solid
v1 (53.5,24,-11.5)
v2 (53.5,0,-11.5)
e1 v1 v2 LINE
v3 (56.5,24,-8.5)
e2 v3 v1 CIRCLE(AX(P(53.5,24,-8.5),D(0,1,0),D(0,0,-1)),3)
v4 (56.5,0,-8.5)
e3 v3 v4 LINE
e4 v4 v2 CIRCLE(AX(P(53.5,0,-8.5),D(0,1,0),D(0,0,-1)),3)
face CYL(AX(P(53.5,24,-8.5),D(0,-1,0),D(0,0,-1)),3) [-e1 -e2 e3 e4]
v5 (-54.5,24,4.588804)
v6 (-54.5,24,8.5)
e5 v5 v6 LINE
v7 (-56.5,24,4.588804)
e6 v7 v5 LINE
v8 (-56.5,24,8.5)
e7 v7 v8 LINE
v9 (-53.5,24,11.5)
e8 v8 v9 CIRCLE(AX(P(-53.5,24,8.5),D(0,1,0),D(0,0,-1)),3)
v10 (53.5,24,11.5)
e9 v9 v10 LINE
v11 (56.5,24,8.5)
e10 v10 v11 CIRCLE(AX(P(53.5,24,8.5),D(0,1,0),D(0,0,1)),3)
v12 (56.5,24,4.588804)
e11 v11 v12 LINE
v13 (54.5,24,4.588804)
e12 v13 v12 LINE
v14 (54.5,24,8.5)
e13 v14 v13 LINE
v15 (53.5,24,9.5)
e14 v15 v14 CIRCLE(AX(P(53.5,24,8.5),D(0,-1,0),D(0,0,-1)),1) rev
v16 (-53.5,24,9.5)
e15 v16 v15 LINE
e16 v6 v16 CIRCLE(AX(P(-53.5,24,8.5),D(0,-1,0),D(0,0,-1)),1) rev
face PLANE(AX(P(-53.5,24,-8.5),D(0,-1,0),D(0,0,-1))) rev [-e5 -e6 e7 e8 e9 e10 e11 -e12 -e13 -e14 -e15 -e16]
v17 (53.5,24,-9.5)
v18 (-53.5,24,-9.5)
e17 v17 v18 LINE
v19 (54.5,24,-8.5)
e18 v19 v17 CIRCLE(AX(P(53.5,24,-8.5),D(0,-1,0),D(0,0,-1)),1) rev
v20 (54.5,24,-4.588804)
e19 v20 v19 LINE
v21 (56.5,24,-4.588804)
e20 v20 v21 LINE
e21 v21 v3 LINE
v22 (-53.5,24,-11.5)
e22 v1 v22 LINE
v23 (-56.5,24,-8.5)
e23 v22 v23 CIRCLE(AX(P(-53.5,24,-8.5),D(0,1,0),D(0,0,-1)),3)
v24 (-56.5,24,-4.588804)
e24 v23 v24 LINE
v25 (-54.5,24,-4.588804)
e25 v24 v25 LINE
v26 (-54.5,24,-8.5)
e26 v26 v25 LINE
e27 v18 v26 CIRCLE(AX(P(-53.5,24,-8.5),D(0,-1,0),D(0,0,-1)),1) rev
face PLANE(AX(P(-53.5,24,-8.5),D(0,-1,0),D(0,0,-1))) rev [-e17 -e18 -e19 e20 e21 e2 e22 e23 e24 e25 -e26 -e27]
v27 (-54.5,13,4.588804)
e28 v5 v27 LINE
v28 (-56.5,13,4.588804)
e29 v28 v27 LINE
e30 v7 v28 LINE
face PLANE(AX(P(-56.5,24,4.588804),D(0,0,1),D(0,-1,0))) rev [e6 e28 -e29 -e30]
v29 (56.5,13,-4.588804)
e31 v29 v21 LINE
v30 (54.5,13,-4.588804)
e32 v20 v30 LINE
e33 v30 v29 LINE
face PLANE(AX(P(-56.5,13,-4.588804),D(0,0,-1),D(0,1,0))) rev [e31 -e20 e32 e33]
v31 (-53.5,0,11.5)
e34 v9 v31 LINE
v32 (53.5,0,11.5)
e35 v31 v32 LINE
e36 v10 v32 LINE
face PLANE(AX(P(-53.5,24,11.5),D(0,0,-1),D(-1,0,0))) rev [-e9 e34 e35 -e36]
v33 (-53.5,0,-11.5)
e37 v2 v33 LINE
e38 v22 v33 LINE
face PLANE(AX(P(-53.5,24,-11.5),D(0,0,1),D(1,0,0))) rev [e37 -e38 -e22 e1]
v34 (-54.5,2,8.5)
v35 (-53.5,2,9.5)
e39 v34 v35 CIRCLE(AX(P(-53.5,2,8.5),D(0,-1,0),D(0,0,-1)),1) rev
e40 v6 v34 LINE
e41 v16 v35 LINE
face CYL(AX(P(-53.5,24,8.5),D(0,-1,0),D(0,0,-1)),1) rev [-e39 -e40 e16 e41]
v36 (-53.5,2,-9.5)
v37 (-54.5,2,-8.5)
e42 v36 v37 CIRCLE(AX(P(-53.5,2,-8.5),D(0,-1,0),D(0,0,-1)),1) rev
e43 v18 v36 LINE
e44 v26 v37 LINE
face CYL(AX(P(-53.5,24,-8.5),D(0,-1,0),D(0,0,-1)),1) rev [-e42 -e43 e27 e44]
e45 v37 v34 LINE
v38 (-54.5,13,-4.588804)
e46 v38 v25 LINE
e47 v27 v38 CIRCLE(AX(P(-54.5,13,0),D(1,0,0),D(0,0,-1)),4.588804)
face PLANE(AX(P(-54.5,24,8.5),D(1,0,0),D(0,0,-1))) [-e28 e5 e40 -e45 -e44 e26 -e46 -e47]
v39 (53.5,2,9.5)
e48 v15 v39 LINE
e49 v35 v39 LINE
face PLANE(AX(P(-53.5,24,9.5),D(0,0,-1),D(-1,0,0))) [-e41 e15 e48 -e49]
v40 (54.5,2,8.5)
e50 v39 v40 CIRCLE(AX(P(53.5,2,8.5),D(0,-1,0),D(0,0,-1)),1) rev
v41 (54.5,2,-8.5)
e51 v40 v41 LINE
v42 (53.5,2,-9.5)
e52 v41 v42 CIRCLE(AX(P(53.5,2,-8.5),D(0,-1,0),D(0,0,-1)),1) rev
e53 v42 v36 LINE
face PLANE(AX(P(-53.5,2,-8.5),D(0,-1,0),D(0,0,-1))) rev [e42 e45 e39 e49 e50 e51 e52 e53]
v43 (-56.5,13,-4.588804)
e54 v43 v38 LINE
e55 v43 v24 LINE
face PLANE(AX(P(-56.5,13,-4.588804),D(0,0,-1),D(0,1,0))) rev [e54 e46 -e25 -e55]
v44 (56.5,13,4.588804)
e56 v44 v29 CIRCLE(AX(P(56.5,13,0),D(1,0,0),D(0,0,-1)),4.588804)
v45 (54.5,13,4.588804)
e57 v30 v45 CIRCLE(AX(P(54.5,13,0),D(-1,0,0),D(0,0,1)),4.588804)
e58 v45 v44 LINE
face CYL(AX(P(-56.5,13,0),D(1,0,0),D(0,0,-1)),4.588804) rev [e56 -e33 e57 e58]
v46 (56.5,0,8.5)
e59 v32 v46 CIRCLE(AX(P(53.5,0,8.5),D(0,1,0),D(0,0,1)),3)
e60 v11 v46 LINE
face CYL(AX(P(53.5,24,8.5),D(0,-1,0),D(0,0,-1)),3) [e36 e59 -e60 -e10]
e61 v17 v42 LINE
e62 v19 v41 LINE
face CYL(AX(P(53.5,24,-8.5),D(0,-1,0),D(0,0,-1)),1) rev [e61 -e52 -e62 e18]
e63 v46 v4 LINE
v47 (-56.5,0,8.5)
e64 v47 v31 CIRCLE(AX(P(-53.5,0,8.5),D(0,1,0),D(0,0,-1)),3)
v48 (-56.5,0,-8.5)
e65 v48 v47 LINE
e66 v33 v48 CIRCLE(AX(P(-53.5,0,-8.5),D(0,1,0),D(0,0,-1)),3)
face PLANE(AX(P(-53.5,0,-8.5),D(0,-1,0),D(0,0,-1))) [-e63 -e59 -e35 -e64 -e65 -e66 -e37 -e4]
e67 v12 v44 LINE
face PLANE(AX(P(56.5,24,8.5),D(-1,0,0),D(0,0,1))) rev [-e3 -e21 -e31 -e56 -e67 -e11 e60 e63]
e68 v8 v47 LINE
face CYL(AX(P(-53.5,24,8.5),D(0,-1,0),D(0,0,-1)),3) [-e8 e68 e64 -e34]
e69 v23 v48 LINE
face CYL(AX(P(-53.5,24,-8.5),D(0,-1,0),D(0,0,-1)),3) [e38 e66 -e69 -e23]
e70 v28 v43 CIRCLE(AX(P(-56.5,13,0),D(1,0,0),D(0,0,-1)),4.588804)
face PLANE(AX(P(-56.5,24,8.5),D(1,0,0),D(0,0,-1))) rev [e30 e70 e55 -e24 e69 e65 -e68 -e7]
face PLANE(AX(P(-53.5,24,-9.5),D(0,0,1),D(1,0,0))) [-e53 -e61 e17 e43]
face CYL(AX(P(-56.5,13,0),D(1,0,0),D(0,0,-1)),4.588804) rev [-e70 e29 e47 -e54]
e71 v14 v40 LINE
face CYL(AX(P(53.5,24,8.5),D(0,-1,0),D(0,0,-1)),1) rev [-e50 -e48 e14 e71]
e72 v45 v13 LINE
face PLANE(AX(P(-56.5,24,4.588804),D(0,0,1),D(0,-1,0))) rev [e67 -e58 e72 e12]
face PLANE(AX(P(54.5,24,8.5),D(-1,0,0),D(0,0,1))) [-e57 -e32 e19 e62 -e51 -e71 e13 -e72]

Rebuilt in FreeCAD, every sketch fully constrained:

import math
import FreeCAD as App
import Part
import Sketcher
Q = App.Units.Quantity


def faces_at(feature, points):
    """Names of the faces that lie closest to the given points."""
    faces = feature.Shape.Faces
    near = lambda p: min(range(len(faces)), key=lambda i: faces[i].distToShape(Part.Vertex(*p))[0])
    return sorted({f"Face{near(p) + 1}" for p in points})

doc = App.newDocument("Part")
body = doc.addObject("PartDesign::Body", "Body")

# Sketch on XZ plane
sketch1 = doc.addObject("Sketcher::SketchObject", "Sketch")
body.addObject(sketch1)
sketch1.AttachmentSupport = (doc.XZ_Plane, [""])
sketch1.MapMode = "FlatFace"
sketch1.addGeometry([
    Part.LineSegment(App.Vector(-53.5, 11.5, 0), App.Vector(53.5, 11.5, 0)),  # 0
    Part.ArcOfCircle(Part.Circle(App.Vector(53.5, 8.5, 0), App.Vector(0, 0, 1), 3), math.radians(0), math.radians(90)),  # 1
    Part.LineSegment(App.Vector(56.5, 8.5, 0), App.Vector(56.5, -8.5, 0)),  # 2
    Part.ArcOfCircle(Part.Circle(App.Vector(53.5, -8.5, 0), App.Vector(0, 0, 1), 3), math.radians(-90), math.radians(0)),  # 3
    Part.LineSegment(App.Vector(53.5, -11.5, 0), App.Vector(-53.5, -11.5, 0)),  # 4
    Part.ArcOfCircle(Part.Circle(App.Vector(-53.5, -8.5, 0), App.Vector(0, 0, 1), 3), math.radians(180), math.radians(270)),  # 5
    Part.LineSegment(App.Vector(-56.5, -8.5, 0), App.Vector(-56.5, 8.5, 0)),  # 6
    Part.ArcOfCircle(Part.Circle(App.Vector(-53.5, 8.5, 0), App.Vector(0, 0, 1), 3), math.radians(90), math.radians(180)),  # 7
], False)
sketch1.addConstraint([
    Sketcher.Constraint("Tangent", 0, 2, 1, 2),
    Sketcher.Constraint("Tangent", 1, 1, 2, 1),
    Sketcher.Constraint("Tangent", 2, 2, 3, 2),
    Sketcher.Constraint("Tangent", 3, 1, 4, 1),
    Sketcher.Constraint("Tangent", 4, 2, 5, 2),
    Sketcher.Constraint("Tangent", 5, 1, 6, 1),
    Sketcher.Constraint("Tangent", 6, 2, 7, 2),
    Sketcher.Constraint("Tangent", 7, 1, 0, 1),
    Sketcher.Constraint("Horizontal", 0),
    Sketcher.Constraint("Vertical", 2),
    Sketcher.Constraint("Horizontal", 4),
    Sketcher.Constraint("Vertical", 6),
    Sketcher.Constraint("Equal", 1, 3),
    Sketcher.Constraint("Equal", 3, 5),
    Sketcher.Constraint("Equal", 5, 7),
    Sketcher.Constraint("Symmetric", 1, 3, 5, 3, -1, 1),
    Sketcher.Constraint("Radius", 1, Q("3 mm")),
    Sketcher.Constraint("DistanceX", 0, 1, 0, 2, Q("107 mm")),
    Sketcher.Constraint("DistanceY", 2, 2, 2, 1, Q("17 mm")),
])
pad1 = doc.addObject("PartDesign::Pad", "Pad")
body.addObject(pad1)
pad1.Profile = sketch1
pad1.Length = 24
pad1.Reversed = True
doc.recompute()

thickness = doc.addObject("PartDesign::Thickness", "Thickness")
body.addObject(thickness)
thickness.Base = (pad1, faces_at(pad1, [(0, 24, 0)]))
thickness.Value = 2
thickness.Reversed = True
thickness.Join = "Intersection"

# Sketch on YZ plane
sketch2 = doc.addObject("Sketcher::SketchObject", "Sketch001")
body.addObject(sketch2)
sketch2.AttachmentSupport = (doc.YZ_Plane, [""])
sketch2.MapMode = "FlatFace"
sketch2.AttachmentOffset = App.Placement(App.Vector(0, 0, 56.5), App.Rotation())
sketch2.addGeometry([
    Part.LineSegment(App.Vector(24, 4.588804, 0), App.Vector(13, 4.588804, 0)),
    Part.ArcOfCircle(Part.Circle(App.Vector(13, 0, 0), App.Vector(0, 0, 1), 4.588804), math.radians(90), math.radians(270)),
    Part.LineSegment(App.Vector(13, -4.588804, 0), App.Vector(24, -4.588804, 0)),
    Part.LineSegment(App.Vector(24, -4.588804, 0), App.Vector(24, 4.588804, 0)),
], False)
sketch2.addConstraint([
    Sketcher.Constraint("Tangent", 0, 2, 1, 1),
    Sketcher.Constraint("Tangent", 1, 2, 2, 1),
    Sketcher.Constraint("Coincident", 2, 2, 3, 1),
    Sketcher.Constraint("Coincident", 3, 2, 0, 1),
    Sketcher.Constraint("Horizontal", 0),
    Sketcher.Constraint("Horizontal", 2),
    Sketcher.Constraint("Vertical", 3),
    Sketcher.Constraint("PointOnObject", 1, 3, -1),
    Sketcher.Constraint("DistanceX", 0, 2, 0, 1, Q("11 mm")),
    Sketcher.Constraint("DistanceX", -1, 1, 1, 3, Q("13 mm")),
    Sketcher.Constraint("Radius", 1, Q("4.588804 mm")),
])
pocket1 = doc.addObject("PartDesign::Pocket", "Pocket")
body.addObject(pocket1)
pocket1.Profile = sketch2
pocket1.Type = "ThroughAll"

doc.recompute()
